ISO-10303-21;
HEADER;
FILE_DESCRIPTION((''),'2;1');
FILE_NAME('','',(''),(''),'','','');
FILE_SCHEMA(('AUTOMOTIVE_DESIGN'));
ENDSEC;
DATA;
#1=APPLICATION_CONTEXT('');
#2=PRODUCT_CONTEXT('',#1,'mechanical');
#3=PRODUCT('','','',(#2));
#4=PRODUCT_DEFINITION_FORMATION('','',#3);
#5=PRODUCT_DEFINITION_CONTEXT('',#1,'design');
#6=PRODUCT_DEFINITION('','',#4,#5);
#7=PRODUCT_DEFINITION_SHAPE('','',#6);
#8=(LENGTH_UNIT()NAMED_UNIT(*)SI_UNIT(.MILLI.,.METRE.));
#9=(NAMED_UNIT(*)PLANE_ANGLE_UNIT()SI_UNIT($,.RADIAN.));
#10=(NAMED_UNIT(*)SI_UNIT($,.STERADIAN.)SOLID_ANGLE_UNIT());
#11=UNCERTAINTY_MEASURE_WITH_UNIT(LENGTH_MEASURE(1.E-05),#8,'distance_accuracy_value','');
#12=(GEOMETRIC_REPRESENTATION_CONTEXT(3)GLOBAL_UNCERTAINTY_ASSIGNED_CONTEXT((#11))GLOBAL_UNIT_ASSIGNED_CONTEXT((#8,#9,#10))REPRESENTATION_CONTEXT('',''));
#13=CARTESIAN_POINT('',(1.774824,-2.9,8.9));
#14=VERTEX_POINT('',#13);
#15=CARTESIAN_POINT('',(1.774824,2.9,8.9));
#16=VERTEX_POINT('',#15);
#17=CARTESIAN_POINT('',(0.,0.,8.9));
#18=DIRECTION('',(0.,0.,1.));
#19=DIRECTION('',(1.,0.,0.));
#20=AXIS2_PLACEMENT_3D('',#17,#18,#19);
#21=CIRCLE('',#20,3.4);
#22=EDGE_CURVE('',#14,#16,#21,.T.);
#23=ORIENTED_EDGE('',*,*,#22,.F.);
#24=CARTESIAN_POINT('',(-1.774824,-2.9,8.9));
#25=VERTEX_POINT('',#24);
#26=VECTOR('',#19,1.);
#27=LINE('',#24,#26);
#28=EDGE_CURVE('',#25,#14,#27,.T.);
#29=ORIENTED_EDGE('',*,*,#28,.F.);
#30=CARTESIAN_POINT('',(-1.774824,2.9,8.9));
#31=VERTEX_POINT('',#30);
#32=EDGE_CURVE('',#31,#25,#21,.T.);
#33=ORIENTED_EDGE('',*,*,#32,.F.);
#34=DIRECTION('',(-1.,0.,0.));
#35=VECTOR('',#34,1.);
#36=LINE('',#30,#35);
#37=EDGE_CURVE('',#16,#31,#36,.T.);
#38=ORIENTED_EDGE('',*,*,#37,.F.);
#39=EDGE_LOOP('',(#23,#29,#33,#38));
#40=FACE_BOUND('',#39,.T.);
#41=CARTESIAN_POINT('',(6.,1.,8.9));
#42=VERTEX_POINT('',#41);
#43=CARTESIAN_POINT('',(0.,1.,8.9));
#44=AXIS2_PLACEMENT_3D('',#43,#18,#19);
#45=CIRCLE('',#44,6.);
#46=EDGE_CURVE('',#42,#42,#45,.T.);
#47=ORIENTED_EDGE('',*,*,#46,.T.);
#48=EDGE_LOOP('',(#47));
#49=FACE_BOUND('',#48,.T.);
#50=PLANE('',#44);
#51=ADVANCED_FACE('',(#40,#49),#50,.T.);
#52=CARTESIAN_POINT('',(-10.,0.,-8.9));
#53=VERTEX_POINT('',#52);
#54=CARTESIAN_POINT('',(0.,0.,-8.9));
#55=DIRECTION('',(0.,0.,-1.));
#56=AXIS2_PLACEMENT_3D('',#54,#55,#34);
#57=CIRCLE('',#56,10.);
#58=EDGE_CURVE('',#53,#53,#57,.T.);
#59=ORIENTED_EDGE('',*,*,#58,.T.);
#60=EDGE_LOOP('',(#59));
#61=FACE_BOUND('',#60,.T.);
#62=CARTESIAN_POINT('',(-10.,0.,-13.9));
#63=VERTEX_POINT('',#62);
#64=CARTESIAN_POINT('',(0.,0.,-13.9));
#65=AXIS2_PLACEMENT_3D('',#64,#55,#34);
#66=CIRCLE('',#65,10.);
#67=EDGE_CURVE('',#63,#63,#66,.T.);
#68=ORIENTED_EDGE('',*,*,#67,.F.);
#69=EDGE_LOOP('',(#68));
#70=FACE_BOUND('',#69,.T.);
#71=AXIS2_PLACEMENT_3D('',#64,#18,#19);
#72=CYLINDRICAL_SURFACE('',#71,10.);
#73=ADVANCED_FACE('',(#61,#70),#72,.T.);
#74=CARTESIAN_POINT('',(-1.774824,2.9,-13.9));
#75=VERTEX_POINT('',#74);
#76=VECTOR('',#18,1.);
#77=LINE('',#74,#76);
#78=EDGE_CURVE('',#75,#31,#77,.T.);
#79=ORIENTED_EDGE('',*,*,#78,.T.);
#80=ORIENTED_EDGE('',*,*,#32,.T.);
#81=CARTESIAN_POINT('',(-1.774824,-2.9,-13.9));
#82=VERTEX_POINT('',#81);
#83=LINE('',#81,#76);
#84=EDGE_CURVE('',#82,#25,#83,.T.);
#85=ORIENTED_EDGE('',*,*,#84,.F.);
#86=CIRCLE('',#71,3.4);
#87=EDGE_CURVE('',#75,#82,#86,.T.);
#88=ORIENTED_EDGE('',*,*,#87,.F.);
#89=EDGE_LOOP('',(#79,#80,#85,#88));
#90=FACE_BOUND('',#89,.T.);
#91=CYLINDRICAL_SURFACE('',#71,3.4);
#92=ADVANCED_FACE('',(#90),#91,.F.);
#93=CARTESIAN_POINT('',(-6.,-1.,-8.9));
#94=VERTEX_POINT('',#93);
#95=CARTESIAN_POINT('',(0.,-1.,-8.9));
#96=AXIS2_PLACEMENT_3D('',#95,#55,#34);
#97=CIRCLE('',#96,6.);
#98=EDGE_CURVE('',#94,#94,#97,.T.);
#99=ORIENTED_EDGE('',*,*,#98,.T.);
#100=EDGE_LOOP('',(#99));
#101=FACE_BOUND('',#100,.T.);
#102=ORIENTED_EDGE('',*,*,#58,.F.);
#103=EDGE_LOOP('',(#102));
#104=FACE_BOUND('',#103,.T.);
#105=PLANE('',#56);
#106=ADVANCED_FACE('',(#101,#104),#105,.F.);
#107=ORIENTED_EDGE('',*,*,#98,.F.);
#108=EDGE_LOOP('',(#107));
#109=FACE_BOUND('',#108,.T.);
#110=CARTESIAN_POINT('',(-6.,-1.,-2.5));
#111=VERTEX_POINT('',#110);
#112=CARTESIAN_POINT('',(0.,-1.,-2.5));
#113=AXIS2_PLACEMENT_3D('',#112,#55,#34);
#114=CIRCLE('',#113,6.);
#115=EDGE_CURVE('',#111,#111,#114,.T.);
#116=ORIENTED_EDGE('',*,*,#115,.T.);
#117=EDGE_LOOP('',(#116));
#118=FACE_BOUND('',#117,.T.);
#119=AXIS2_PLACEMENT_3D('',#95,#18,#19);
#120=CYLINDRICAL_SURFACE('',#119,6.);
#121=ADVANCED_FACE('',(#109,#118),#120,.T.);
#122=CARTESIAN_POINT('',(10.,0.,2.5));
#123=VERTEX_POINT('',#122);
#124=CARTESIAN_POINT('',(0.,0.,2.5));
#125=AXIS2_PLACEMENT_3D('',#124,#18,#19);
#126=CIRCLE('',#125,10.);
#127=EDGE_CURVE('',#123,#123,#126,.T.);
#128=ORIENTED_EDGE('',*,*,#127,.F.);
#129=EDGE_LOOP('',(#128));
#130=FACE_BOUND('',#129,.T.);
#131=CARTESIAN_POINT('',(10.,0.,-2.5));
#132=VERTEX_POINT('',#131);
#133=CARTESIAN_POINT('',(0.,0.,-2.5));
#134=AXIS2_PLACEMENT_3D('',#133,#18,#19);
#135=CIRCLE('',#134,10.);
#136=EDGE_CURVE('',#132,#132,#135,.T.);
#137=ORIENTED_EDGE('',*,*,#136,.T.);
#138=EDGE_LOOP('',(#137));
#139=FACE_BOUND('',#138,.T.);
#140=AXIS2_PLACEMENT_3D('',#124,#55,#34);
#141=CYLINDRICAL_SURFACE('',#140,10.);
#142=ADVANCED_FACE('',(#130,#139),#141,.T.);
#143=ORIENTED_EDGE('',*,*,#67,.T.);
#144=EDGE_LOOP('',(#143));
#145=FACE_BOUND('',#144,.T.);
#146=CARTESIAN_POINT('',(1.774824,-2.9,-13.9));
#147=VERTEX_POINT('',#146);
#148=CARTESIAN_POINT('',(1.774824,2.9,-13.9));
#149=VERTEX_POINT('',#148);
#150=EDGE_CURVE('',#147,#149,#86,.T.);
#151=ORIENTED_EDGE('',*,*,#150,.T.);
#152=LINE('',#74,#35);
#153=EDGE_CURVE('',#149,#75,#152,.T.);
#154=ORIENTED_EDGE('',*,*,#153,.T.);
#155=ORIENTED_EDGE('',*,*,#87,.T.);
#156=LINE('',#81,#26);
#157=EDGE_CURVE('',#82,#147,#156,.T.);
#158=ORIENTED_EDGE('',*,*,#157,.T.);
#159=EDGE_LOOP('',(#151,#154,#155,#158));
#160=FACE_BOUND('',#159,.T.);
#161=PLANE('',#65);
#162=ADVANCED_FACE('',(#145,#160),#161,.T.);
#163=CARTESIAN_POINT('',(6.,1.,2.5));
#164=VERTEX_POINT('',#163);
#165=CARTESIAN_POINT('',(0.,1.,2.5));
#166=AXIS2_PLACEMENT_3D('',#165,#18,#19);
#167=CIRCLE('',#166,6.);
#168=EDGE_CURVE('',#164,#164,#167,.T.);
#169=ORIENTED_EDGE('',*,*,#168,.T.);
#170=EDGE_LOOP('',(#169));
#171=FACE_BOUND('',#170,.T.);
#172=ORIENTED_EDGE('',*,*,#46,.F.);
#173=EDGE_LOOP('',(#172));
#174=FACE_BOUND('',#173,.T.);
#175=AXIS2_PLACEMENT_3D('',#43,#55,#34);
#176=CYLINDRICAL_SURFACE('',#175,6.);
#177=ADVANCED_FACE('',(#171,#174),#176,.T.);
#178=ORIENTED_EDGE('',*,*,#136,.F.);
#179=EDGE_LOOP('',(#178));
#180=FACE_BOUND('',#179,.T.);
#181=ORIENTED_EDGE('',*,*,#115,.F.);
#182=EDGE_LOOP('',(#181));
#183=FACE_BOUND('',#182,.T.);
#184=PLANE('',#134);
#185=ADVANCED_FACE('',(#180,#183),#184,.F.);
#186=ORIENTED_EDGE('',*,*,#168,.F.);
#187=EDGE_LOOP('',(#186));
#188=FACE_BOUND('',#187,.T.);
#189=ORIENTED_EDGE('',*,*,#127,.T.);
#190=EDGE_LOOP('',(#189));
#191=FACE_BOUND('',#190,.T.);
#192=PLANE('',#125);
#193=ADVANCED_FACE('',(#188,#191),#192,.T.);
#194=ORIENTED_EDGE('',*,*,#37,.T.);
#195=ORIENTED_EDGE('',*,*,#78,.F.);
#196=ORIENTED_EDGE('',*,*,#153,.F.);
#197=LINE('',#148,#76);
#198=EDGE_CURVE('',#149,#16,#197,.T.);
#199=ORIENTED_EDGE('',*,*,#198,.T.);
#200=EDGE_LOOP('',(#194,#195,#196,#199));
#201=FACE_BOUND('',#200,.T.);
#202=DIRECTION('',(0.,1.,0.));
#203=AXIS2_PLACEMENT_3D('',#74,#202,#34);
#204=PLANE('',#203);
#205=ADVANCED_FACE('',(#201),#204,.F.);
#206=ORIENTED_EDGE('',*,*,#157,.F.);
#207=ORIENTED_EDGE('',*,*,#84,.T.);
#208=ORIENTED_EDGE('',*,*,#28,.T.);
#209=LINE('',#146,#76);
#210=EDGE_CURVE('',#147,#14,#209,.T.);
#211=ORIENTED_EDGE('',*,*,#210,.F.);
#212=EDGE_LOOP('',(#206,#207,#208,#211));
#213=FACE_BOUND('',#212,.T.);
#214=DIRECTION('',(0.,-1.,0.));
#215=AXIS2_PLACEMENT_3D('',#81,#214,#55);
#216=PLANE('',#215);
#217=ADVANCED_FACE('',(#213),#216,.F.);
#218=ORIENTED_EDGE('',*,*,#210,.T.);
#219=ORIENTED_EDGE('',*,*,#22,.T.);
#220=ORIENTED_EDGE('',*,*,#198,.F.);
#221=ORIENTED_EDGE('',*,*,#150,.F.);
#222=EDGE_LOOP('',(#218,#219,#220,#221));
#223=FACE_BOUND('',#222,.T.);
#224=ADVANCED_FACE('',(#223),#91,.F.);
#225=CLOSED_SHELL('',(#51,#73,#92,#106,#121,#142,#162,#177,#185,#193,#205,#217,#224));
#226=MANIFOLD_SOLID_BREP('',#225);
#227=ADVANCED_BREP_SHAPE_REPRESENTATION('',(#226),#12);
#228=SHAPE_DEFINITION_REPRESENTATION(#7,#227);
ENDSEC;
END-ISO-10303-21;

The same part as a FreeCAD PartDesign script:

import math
import FreeCAD as App
import Part
import Sketcher
from FreeCAD import Vector
Q = App.Units.Quantity

doc = App.newDocument("Part")
body = doc.addObject("PartDesign::Body", "Body")

sketch1 = body.newObject("Sketcher::SketchObject", "Sketch")
sketch1.AttachmentSupport = (doc.getObject("XY_Plane"), [""])
sketch1.MapMode = "FlatFace"
sketch1.addGeometry(Part.Circle(Vector(0, 0, 0), Vector(0, 0, 1), 10), False)
sketch1.addConstraint(Sketcher.Constraint("Coincident", 0, 3, -1, 1))
sketch1.addConstraint(Sketcher.Constraint("Diameter", 0, Q("20 mm")))
pad1 = body.newObject("PartDesign::Pad", "Pad")
pad1.Profile = sketch1
pad1.Length = 5
pad1.Midplane = True

sketch2 = body.newObject("Sketcher::SketchObject", "Sketch001")
sketch2.AttachmentSupport = (doc.getObject("XY_Plane"), [""])
sketch2.MapMode = "FlatFace"
sketch2.AttachmentOffset = App.Placement(Vector(0, 0, 2.5), App.Rotation())
sketch2.addGeometry(Part.Circle(Vector(0, 1, 0), Vector(0, 0, 1), 6), False)
sketch2.addConstraint(Sketcher.Constraint("PointOnObject", 0, 3, -2))
sketch2.addConstraint(Sketcher.Constraint("Diameter", 0, Q("12 mm")))
sketch2.addConstraint(Sketcher.Constraint("DistanceY", -1, 1, 0, 3, Q("1 mm")))
pad2 = body.newObject("PartDesign::Pad", "Pad001")
pad2.Profile = sketch2
pad2.Length = 6.4

sketch3 = body.newObject("Sketcher::SketchObject", "Sketch002")
sketch3.AttachmentSupport = (doc.getObject("XY_Plane"), [""])
sketch3.MapMode = "FlatFace"
sketch3.AttachmentOffset = App.Placement(Vector(0, 0, -2.5), App.Rotation())
sketch3.addGeometry(Part.Circle(Vector(0, -1, 0), Vector(0, 0, 1), 6), False)
sketch3.addConstraint(Sketcher.Constraint("PointOnObject", 0, 3, -2))
sketch3.addConstraint(Sketcher.Constraint("Diameter", 0, Q("12 mm")))
sketch3.addConstraint(Sketcher.Constraint("DistanceY", 0, 3, -1, 1, Q("1 mm")))
pad3 = body.newObject("PartDesign::Pad", "Pad002")
pad3.Profile = sketch3
pad3.Length = 6.4
pad3.Reversed = True

sketch4 = body.newObject("Sketcher::SketchObject", "Sketch003")
sketch4.AttachmentSupport = (doc.getObject("XY_Plane"), [""])
sketch4.MapMode = "FlatFace"
sketch4.AttachmentOffset = App.Placement(Vector(0, 0, -8.9), App.Rotation())
sketch4.addGeometry(Part.Circle(Vector(0, 0, 0), Vector(0, 0, 1), 10), False)
sketch4.addConstraint(Sketcher.Constraint("Coincident", 0, 3, -1, 1))
sketch4.addConstraint(Sketcher.Constraint("Diameter", 0, Q("20 mm")))
pad4 = body.newObject("PartDesign::Pad", "Pad003")
pad4.Profile = sketch4
pad4.Length = 5
pad4.Reversed = True

sketch5 = body.newObject("Sketcher::SketchObject", "Sketch004")
sketch5.AttachmentSupport = (doc.getObject("XY_Plane"), [""])
sketch5.MapMode = "FlatFace"
sketch5.AttachmentOffset = App.Placement(Vector(0, 0, 2.5), App.Rotation())
sketch5.addGeometry(Part.LineSegment(Vector(-1.8, -2.9, 0), Vector(1.8, -2.9, 0)), False)
sketch5.addGeometry(Part.ArcOfCircle(Part.Circle(Vector(0, 0, 0), Vector(0, 0, 1), 3.4), math.radians(-59), math.radians(59)), False)
sketch5.addGeometry(Part.LineSegment(Vector(1.8, 2.9, 0), Vector(-1.8, 2.9, 0)), False)
sketch5.addGeometry(Part.ArcOfCircle(Part.Circle(Vector(0, 0, 0), Vector(0, 0, 1), 3.4), math.radians(121), math.radians(239)), False)
sketch5.addConstraint(Sketcher.Constraint("Coincident", 0, 2, 1, 1))
sketch5.addConstraint(Sketcher.Constraint("Coincident", 1, 2, 2, 1))
sketch5.addConstraint(Sketcher.Constraint("Coincident", 2, 2, 3, 1))
sketch5.addConstraint(Sketcher.Constraint("Coincident", 3, 2, 0, 1))
sketch5.addConstraint(Sketcher.Constraint("Horizontal", 0))
sketch5.addConstraint(Sketcher.Constraint("Horizontal", 2))
sketch5.addConstraint(Sketcher.Constraint("Coincident", 1, 3, -1, 1))
sketch5.addConstraint(Sketcher.Constraint("Coincident", 3, 3, -1, 1))
sketch5.addConstraint(Sketcher.Constraint("Equal", 1, 3))
sketch5.addConstraint(Sketcher.Constraint("Vertical", 0, 2, 1, 2))
sketch5.addConstraint(Sketcher.Constraint("Radius", 1, Q("3.4 mm")))
sketch5.addConstraint(Sketcher.Constraint("DistanceY", 0, 2, -1, 1, Q("2.9 mm")))
pocket1 = body.newObject("PartDesign::Pocket", "Pocket")
pocket1.Profile = sketch5
pocket1.Type = "ThroughAll"
pocket1.Midplane = True

doc.recompute()
